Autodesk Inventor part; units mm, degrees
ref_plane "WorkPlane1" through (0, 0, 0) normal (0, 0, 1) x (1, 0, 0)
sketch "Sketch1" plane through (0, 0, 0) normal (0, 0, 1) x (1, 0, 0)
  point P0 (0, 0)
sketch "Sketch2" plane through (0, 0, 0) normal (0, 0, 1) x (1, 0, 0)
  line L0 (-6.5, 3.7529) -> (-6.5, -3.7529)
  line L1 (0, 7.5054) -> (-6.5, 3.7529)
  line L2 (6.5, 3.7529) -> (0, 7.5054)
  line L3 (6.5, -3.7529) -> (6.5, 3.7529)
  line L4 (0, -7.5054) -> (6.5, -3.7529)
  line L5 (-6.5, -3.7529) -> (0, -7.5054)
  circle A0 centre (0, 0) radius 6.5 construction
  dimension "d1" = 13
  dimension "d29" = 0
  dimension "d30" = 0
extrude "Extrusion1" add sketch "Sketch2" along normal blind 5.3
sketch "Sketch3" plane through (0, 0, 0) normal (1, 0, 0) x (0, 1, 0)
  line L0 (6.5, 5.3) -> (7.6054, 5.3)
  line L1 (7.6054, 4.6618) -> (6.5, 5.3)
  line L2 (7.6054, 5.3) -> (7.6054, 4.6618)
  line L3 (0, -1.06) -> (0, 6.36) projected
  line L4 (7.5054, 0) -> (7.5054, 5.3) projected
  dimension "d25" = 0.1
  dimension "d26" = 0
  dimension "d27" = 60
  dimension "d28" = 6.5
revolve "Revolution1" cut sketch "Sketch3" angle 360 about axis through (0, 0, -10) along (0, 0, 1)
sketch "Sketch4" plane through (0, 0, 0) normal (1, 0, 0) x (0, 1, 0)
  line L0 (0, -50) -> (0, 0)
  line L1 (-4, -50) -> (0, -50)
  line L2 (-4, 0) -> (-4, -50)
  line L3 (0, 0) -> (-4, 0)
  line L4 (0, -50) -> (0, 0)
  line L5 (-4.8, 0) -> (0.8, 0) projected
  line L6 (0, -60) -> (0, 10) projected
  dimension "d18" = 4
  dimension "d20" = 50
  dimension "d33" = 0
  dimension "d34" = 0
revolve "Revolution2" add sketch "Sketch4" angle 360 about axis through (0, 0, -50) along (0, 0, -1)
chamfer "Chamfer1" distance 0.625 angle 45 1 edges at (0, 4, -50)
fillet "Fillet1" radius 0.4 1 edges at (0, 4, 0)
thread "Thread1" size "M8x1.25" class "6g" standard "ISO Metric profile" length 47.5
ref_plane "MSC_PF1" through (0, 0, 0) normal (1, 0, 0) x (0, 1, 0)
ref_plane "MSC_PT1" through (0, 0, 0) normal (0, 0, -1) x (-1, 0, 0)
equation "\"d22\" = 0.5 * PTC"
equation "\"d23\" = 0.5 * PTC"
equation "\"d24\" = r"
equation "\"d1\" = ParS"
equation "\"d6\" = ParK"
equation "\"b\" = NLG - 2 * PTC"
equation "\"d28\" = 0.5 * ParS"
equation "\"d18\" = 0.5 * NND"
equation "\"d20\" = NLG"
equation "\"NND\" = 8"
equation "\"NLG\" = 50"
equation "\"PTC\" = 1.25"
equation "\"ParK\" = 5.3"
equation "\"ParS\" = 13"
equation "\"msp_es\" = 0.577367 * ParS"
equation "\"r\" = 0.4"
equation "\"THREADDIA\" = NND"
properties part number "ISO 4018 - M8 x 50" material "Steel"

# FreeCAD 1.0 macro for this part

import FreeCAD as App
import Part
import Sketcher
from FreeCAD import Vector
Q = App.Units.Quantity


def edges_at(feature, points):
    """Names of the edges that pass closest to the given points."""
    edges = feature.Shape.Edges
    near = lambda p: min(range(len(edges)), key=lambda i: edges[i].distToShape(Part.Vertex(*p))[0])
    return sorted({f"Edge{near(p) + 1}" for p in points})


def add_polygon(sketch, points):
    """Adds a closed chain of lines whose ends are joined by coincident constraints."""
    first, n = sketch.GeometryCount, len(points)
    for a, b in zip(points, points[1:] + points[:1]):
        sketch.addGeometry(Part.LineSegment(App.Vector(*a, 0), App.Vector(*b, 0)), False)
    for i in range(n):
        sketch.addConstraint(Sketcher.Constraint("Coincident", first + i, 2, first + (i + 1) % n, 1))

doc = App.newDocument("Part")
body = doc.addObject("PartDesign::Body", "Body")

# Sketch on XY plane
sketch1 = doc.addObject("Sketcher::SketchObject", "Sketch")
body.addObject(sketch1)
sketch1.AttachmentSupport = (doc.XY_Plane, [""])
sketch1.MapMode = "FlatFace"
add_polygon(sketch1, [(0, 7.5054), (-6.5, 3.7529), (-6.5, -3.7529), (0, -7.5054), (6.5, -3.7529), (6.5, 3.7529)])  # lines 0-5
sketch1.addConstraint(Sketcher.Constraint("Vertical", 1))
sketch1.addConstraint(Sketcher.Constraint("Vertical", 4))
sketch1.addConstraint(Sketcher.Constraint("Symmetric", 0, 2, 3, 2, -1, 1))
sketch1.addConstraint(Sketcher.Constraint("Symmetric", 2, 2, 5, 2, -1, 1))
sketch1.addConstraint(Sketcher.Constraint("PointOnObject", 2, 2, -2))
sketch1.addConstraint(Sketcher.Constraint("Parallel", 2, 5))
sketch1.addConstraint(Sketcher.Constraint("Horizontal", 1, 2, 3, 2))
sketch1.addConstraint(Sketcher.Constraint("DistanceX", 1, 2, 3, 2, Q("13 mm")))
sketch1.addConstraint(Sketcher.Constraint("DistanceY", 1, 2, 1, 1, Q("7.5058 mm")))
sketch1.addConstraint(Sketcher.Constraint("Distance", 0, Q("7.5054 mm")))
pad1 = doc.addObject("PartDesign::Pad", "Pad")
body.addObject(pad1)
pad1.Profile = sketch1
pad1.Length = 5.3

# Sketch on YZ plane
sketch2 = doc.addObject("Sketcher::SketchObject", "Sketch001")
body.addObject(sketch2)
sketch2.AttachmentSupport = (doc.YZ_Plane, [""])
sketch2.MapMode = "FlatFace"
add_polygon(sketch2, [(6.5, 5.3), (7.6054, 4.6618), (7.6054, 5.3)])  # lines 0-2
sketch2.addConstraint(Sketcher.Constraint("Vertical", 1))
sketch2.addConstraint(Sketcher.Constraint("Horizontal", 2))
sketch2.addConstraint(Sketcher.Constraint("DistanceX", -1, 1, 2, 2, Q("6.5 mm")))
sketch2.addConstraint(Sketcher.Constraint("Angle", 0, Q("-30 deg")))
sketch2.addConstraint(Sketcher.Constraint("DistanceY", -1, 1, 1, 2, Q("5.3 mm")))
sketch2.addConstraint(Sketcher.Constraint("DistanceX", 2, 2, 2, 1, Q("1.1054 mm")))
groove = doc.addObject("PartDesign::Groove", "Groove")
body.addObject(groove)
groove.Profile = sketch2
groove.ReferenceAxis = (sketch2, ["V_Axis"])
groove.Angle = 360

# Sketch on YZ plane
sketch3 = doc.addObject("Sketcher::SketchObject", "Sketch002")
body.addObject(sketch3)
sketch3.AttachmentSupport = (doc.YZ_Plane, [""])
sketch3.MapMode = "FlatFace"
add_polygon(sketch3, [(-4, -50), (0, -50), (0, 0), (-4, 0)])  # lines 0-3
sketch3.addConstraint(Sketcher.Constraint("Horizontal", 0))
sketch3.addConstraint(Sketcher.Constraint("Vertical", 1))
sketch3.addConstraint(Sketcher.Constraint("Horizontal", 2))
sketch3.addConstraint(Sketcher.Constraint("Vertical", 3))
sketch3.addConstraint(Sketcher.Constraint("Coincident", 1, 2, -1, 1))
sketch3.addConstraint(Sketcher.Constraint("DistanceX", 0, 1, 0, 2, Q("4 mm")))
sketch3.addConstraint(Sketcher.Constraint("DistanceY", 1, 1, 1, 2, Q("50 mm")))
revolution = doc.addObject("PartDesign::Revolution", "Revolution")
body.addObject(revolution)
revolution.Profile = sketch3
revolution.ReferenceAxis = (sketch3, ["V_Axis"])
revolution.Angle = 360
doc.recompute()

chamfer = doc.addObject("PartDesign::Chamfer", "Chamfer")
body.addObject(chamfer)
chamfer.Base = (revolution, edges_at(revolution, [(0, 4, -50)]))
chamfer.Size = 0.625
doc.recompute()

fillet = doc.addObject("PartDesign::Fillet", "Fillet")
body.addObject(fillet)
fillet.Base = (chamfer, edges_at(chamfer, [(0, 4, 0)]))
fillet.Radius = 0.4

doc.recompute()
